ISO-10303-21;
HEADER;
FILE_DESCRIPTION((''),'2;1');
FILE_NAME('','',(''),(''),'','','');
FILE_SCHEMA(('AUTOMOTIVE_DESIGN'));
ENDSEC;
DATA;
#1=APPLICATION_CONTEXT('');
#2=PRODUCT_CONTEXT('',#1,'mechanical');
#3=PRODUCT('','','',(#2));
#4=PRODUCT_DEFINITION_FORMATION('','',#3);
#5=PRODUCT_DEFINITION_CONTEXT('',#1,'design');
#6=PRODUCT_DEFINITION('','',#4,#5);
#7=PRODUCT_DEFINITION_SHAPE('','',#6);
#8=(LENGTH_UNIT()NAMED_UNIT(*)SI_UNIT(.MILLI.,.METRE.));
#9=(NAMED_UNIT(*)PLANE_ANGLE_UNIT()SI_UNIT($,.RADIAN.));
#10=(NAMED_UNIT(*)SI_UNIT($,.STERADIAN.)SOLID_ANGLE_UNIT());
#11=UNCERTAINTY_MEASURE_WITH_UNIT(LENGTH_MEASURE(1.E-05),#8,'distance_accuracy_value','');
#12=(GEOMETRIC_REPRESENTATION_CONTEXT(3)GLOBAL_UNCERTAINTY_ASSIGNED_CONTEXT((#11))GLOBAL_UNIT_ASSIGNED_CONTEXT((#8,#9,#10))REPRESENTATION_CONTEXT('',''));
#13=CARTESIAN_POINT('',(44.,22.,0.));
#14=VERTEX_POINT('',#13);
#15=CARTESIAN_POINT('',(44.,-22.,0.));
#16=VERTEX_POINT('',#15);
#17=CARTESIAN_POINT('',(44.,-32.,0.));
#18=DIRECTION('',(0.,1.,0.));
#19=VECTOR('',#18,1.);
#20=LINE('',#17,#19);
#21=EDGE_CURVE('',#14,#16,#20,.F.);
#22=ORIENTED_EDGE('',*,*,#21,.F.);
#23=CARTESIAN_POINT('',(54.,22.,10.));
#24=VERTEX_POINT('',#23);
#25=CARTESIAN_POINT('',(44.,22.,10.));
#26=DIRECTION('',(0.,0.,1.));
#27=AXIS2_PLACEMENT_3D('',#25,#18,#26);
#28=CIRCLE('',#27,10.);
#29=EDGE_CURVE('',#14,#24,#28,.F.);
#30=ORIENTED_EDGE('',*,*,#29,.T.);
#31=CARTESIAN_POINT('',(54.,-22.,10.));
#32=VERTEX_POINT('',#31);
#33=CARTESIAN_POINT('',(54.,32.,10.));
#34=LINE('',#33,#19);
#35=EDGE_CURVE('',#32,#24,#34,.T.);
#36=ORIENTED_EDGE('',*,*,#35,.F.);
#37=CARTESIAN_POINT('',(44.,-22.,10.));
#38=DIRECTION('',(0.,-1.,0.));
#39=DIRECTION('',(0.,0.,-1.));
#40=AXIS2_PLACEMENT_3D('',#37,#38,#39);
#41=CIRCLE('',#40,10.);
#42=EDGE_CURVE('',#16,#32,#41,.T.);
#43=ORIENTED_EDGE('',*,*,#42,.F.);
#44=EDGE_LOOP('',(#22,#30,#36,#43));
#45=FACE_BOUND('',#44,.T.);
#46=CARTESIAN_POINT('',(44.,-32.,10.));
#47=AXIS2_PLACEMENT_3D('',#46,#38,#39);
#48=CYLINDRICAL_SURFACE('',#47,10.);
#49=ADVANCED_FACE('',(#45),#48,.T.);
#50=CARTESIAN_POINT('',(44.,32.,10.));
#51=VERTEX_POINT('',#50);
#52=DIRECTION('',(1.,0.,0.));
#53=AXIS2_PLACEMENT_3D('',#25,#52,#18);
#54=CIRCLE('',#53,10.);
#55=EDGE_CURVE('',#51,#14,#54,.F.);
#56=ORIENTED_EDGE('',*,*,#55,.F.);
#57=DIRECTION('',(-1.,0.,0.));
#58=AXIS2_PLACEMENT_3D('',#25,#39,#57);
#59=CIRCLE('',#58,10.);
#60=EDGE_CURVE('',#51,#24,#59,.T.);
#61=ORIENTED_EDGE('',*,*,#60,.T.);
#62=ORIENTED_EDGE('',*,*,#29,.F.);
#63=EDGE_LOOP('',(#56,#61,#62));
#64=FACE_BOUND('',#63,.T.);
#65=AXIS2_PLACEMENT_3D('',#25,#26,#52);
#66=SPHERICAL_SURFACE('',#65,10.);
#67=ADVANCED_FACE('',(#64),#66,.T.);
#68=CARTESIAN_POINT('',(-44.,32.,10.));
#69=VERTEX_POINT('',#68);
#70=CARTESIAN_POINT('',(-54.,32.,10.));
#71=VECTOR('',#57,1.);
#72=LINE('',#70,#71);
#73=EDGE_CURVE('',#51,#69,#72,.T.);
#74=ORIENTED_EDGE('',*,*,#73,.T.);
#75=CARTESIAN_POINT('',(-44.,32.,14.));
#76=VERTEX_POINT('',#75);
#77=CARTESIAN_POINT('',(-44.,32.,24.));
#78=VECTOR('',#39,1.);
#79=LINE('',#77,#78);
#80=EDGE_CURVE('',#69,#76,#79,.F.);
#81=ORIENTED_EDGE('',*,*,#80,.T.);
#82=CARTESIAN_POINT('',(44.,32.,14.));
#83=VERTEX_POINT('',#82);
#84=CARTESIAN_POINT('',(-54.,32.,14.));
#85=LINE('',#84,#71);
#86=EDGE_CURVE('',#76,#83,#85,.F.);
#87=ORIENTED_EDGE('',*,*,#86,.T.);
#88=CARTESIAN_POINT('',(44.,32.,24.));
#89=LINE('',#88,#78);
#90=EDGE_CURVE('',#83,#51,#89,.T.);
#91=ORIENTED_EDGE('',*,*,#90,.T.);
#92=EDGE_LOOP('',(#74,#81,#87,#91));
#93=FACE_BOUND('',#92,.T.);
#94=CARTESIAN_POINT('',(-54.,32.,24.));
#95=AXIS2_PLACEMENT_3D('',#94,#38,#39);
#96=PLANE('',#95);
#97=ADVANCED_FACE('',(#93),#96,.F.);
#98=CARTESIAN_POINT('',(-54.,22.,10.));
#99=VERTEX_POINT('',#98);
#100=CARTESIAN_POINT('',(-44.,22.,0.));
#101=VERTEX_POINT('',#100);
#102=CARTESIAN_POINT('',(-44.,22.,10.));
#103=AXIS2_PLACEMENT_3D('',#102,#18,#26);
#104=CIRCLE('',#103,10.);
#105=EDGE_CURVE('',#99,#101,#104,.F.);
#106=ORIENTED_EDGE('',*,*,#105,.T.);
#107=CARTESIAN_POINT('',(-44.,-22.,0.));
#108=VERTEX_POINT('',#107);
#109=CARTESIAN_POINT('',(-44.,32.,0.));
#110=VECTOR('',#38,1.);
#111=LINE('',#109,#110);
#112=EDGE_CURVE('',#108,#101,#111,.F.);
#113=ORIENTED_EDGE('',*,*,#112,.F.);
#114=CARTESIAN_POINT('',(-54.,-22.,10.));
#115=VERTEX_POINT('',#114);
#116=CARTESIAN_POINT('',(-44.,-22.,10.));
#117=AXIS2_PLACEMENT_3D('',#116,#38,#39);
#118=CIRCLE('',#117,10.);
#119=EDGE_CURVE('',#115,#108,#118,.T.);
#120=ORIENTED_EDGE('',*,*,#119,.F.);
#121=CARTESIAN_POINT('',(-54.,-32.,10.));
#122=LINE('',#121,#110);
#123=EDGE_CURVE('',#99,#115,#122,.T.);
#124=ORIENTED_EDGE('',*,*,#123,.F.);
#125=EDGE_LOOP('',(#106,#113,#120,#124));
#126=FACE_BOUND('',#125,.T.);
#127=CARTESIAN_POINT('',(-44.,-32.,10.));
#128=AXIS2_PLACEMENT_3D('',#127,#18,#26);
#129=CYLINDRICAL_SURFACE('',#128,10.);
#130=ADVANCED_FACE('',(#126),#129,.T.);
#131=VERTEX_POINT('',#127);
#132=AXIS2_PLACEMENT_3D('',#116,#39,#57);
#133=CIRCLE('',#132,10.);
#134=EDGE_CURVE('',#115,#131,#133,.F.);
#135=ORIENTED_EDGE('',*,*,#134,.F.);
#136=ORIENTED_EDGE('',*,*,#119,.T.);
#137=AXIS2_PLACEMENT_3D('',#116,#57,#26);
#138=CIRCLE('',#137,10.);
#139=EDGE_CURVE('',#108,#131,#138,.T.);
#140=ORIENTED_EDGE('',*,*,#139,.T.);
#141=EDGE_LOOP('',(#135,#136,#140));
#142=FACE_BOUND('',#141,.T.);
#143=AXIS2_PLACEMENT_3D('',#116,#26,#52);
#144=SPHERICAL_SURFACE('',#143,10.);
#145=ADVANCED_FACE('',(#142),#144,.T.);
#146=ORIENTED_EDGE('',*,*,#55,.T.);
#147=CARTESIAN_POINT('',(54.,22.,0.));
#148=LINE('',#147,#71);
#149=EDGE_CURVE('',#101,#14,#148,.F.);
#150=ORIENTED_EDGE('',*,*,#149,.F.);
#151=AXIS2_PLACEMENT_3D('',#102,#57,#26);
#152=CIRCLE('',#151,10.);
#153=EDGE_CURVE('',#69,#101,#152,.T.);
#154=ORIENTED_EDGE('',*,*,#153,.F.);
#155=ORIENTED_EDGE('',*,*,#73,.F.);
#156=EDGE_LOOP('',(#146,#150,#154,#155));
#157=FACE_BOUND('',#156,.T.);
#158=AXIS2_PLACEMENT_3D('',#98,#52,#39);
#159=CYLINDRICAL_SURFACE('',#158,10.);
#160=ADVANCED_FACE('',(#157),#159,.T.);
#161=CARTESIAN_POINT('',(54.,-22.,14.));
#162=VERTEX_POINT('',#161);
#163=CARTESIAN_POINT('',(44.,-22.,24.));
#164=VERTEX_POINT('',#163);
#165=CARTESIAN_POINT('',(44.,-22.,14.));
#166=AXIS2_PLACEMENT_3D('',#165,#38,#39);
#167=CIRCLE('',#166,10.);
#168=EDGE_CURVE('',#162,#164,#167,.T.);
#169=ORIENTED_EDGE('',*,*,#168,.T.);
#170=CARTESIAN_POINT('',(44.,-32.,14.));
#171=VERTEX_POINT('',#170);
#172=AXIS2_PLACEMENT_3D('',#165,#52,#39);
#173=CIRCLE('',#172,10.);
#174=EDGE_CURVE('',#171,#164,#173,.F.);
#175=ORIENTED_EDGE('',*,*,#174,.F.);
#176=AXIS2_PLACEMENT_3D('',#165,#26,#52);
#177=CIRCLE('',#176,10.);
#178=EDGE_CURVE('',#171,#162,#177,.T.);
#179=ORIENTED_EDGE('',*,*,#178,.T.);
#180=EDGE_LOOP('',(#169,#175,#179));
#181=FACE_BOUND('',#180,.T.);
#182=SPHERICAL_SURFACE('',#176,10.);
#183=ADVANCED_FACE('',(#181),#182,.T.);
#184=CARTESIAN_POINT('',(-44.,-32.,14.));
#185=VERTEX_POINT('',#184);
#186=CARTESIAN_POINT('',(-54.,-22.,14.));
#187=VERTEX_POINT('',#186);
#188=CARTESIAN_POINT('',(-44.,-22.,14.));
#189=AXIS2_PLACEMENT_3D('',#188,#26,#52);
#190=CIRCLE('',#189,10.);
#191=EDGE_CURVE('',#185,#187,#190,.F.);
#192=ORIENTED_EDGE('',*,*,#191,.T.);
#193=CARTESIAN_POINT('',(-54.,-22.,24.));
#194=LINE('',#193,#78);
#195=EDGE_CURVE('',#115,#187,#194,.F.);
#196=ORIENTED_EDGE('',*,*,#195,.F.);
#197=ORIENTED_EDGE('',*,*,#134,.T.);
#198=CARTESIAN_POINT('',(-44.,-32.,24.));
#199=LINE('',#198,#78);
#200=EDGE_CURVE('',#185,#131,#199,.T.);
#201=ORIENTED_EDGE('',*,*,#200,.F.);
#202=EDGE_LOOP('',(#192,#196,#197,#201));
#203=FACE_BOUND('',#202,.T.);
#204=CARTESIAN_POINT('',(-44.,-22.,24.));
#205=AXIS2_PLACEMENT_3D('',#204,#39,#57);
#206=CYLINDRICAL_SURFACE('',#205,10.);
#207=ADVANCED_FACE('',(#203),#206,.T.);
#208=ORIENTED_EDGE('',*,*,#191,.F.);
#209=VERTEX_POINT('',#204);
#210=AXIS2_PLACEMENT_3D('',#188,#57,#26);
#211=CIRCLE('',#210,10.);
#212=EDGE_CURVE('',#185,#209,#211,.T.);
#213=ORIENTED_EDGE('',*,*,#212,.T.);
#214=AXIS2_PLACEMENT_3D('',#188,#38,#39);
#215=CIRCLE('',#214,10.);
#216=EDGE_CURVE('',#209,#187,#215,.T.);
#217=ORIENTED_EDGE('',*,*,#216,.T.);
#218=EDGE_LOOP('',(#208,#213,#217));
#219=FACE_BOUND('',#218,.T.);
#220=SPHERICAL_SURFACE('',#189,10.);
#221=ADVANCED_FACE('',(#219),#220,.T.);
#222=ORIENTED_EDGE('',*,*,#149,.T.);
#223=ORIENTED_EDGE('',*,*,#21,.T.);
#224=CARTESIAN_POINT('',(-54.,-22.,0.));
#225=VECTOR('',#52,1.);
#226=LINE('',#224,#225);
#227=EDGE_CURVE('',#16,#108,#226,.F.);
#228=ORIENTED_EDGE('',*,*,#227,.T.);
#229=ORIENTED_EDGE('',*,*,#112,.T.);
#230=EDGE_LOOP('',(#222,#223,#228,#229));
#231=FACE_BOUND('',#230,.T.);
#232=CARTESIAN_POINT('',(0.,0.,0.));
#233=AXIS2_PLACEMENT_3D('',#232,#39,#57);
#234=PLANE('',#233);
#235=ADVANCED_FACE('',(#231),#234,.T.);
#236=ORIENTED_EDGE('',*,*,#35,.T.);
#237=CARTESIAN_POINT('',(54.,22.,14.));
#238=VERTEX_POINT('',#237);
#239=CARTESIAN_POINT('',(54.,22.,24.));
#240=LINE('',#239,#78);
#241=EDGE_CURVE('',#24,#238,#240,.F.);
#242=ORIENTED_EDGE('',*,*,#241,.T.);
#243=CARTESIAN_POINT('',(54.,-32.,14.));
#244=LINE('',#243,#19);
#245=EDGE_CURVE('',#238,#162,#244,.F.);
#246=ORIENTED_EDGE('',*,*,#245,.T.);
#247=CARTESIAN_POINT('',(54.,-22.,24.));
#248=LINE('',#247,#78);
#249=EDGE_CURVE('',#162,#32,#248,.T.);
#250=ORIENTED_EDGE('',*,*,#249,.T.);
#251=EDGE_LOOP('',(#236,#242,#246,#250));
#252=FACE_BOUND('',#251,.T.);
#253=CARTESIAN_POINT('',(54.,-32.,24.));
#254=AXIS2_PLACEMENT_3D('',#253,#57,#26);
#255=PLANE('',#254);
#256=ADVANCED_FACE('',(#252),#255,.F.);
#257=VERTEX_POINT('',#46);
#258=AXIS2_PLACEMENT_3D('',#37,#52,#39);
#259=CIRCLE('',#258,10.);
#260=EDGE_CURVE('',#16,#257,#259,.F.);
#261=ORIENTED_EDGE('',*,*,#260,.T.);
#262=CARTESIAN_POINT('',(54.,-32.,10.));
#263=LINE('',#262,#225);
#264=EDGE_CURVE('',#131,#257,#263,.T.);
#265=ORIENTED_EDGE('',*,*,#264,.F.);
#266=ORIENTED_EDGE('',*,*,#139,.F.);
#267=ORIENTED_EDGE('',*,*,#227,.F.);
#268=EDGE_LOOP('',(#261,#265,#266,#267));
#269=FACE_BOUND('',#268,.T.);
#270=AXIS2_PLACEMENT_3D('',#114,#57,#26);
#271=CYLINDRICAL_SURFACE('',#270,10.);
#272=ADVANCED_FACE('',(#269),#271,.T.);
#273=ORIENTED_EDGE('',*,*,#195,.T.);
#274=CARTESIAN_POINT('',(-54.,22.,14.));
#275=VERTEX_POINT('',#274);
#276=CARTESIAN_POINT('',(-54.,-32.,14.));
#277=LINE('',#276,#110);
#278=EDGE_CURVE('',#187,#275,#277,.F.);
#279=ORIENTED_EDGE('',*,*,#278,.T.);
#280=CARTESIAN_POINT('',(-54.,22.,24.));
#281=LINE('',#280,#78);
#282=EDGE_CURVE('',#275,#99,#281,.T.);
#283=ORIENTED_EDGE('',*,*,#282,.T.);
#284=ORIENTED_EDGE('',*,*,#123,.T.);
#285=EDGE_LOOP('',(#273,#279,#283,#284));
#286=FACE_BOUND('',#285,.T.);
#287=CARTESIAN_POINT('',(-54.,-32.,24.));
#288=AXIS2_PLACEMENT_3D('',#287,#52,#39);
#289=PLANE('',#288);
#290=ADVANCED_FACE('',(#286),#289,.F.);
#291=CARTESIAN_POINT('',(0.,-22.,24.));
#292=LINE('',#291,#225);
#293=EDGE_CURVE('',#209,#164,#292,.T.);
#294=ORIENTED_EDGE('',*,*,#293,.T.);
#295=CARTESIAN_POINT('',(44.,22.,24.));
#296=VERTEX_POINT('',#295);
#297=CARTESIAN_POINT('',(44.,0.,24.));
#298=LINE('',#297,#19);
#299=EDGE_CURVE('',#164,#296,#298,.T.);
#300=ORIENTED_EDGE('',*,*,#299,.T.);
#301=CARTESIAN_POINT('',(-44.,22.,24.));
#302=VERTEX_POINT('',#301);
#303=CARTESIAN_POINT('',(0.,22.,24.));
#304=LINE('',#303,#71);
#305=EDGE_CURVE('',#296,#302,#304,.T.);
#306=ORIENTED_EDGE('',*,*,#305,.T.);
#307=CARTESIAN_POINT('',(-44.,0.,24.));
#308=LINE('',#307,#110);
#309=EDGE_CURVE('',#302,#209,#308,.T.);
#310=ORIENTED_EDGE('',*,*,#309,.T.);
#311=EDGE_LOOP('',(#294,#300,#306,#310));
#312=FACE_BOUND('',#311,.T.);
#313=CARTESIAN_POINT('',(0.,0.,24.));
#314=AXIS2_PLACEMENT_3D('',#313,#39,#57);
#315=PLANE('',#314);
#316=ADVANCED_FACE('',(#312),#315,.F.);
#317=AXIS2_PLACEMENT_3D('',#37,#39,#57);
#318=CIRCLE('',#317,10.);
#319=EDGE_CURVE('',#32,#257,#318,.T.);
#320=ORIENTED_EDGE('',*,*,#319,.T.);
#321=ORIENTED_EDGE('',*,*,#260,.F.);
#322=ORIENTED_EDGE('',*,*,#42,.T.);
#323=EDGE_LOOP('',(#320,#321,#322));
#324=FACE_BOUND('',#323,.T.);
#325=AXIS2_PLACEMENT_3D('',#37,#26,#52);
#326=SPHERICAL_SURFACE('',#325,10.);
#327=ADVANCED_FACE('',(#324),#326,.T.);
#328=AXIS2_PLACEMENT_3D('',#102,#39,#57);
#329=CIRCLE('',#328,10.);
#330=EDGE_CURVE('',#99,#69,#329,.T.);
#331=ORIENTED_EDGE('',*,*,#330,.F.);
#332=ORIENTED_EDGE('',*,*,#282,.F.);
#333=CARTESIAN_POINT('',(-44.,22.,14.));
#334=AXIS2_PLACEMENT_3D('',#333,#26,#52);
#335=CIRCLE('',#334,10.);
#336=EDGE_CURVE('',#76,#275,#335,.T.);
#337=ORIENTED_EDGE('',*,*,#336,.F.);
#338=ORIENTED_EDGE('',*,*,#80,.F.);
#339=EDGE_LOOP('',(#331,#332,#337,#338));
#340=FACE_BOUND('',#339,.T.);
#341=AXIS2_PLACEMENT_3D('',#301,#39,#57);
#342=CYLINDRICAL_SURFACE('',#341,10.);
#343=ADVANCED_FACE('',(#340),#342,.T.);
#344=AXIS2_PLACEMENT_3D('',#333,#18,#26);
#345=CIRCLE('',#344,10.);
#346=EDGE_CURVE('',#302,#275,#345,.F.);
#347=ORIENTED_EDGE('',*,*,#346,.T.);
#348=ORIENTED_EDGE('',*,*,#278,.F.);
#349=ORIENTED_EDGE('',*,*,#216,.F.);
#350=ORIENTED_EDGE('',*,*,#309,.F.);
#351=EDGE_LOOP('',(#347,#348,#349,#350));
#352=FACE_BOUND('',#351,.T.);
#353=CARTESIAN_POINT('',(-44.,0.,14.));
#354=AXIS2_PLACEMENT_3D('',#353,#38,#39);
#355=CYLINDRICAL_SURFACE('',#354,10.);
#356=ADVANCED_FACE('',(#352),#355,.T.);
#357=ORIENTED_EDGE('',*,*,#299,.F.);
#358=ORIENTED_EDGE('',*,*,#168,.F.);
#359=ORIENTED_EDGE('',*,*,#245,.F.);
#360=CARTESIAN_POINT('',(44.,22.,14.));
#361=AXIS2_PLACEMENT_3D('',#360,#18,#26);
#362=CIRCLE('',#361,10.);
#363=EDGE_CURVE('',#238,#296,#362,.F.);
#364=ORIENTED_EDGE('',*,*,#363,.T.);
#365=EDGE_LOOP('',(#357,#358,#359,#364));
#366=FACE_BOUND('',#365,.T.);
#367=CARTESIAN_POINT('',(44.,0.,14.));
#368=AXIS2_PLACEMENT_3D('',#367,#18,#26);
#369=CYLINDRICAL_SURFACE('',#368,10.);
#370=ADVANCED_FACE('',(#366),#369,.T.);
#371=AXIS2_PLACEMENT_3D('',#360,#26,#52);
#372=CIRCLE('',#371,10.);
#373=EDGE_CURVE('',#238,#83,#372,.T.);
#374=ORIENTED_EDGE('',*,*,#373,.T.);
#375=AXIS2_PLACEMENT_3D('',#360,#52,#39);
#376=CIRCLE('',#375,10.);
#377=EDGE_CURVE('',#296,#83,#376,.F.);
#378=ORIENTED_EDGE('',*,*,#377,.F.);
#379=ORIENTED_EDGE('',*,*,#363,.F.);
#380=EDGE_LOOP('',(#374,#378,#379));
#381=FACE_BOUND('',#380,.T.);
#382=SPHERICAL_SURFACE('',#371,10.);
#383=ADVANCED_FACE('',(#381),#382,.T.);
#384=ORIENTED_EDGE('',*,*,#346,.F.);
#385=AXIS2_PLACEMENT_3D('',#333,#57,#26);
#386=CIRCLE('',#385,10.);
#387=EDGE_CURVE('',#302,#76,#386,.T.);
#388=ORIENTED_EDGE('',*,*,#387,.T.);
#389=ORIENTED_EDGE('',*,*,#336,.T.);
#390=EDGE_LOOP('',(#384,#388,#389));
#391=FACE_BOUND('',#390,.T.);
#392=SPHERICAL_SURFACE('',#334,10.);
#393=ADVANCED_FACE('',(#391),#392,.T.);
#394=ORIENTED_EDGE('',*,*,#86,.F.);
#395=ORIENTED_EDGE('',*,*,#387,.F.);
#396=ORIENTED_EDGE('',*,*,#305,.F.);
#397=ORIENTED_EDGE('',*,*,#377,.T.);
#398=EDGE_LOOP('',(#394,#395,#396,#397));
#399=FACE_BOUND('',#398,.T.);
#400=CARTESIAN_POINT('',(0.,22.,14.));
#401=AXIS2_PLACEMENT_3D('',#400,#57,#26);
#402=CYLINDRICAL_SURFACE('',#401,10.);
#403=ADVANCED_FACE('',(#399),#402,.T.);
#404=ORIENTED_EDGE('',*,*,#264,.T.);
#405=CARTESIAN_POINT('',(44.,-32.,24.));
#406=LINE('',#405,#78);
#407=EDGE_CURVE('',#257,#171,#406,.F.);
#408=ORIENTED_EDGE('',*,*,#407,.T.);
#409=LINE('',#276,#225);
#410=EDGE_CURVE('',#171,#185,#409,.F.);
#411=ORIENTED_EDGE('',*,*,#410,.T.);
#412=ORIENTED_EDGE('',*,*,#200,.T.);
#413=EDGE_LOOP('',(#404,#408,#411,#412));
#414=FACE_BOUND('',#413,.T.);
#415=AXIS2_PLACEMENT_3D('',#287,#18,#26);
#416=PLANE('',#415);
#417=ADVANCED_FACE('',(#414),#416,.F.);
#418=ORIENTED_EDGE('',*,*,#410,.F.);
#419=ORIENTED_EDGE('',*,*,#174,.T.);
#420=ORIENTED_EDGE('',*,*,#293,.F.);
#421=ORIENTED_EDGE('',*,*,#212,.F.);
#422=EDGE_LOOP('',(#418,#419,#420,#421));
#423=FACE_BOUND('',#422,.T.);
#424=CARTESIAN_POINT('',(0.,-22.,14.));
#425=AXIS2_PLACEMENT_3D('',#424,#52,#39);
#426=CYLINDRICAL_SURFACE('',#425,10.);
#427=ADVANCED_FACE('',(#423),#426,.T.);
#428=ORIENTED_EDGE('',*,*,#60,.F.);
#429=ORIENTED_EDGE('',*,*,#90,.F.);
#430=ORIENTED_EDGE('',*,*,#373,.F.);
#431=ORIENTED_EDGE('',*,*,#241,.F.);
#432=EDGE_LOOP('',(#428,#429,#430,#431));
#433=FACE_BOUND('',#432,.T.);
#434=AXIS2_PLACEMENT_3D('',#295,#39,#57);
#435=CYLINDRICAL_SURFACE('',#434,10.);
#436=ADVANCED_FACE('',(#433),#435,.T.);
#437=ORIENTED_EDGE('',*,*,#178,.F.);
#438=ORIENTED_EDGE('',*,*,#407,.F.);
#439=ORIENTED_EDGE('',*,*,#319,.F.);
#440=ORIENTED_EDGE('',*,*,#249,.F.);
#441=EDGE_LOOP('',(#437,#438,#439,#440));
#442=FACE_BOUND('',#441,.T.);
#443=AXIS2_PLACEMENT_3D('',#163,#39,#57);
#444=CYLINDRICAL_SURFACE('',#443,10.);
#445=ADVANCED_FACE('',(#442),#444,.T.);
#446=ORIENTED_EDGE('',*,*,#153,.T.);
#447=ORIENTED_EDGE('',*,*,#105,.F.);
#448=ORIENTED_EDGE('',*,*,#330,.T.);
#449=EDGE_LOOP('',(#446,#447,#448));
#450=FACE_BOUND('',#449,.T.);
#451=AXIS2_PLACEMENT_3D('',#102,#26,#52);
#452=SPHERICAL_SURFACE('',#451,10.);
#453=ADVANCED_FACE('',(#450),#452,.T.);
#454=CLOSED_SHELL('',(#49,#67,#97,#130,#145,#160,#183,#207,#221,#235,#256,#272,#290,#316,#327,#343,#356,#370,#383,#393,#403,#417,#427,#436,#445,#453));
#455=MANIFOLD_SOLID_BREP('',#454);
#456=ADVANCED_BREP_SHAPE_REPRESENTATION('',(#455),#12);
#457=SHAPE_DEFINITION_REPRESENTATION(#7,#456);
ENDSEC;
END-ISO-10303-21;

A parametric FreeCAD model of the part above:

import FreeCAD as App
import Part
import Sketcher
Q = App.Units.Quantity

doc = App.newDocument("Part")
body = doc.addObject("PartDesign::Body", "Body")

# Sketch on XY plane
sketch1 = body.newObject("Sketcher::SketchObject", "Sketch")
sketch1.AttachmentSupport = (doc.getObject("XY_Plane"), [""])
sketch1.MapMode = "FlatFace"
sketch1.addGeometry(Part.LineSegment(App.Vector(-54, 32, 0), App.Vector(-54, -32, 0)), False)
sketch1.addGeometry(Part.LineSegment(App.Vector(-54, -32, 0), App.Vector(54, -32, 0)), False)
sketch1.addGeometry(Part.LineSegment(App.Vector(54, -32, 0), App.Vector(54, 32, 0)), False)
sketch1.addGeometry(Part.LineSegment(App.Vector(54, 32, 0), App.Vector(-54, 32, 0)), False)
sketch1.addConstraint(Sketcher.Constraint("Coincident", 0, 2, 1, 1))
sketch1.addConstraint(Sketcher.Constraint("Coincident", 1, 2, 2, 1))
sketch1.addConstraint(Sketcher.Constraint("Coincident", 2, 2, 3, 1))
sketch1.addConstraint(Sketcher.Constraint("Coincident", 3, 2, 0, 1))
sketch1.addConstraint(Sketcher.Constraint("Vertical", 0))
sketch1.addConstraint(Sketcher.Constraint("Horizontal", 1))
sketch1.addConstraint(Sketcher.Constraint("Vertical", 2))
sketch1.addConstraint(Sketcher.Constraint("Horizontal", 3))
sketch1.addConstraint(Sketcher.Constraint("Symmetric", 0, 2, 2, 2, -1, 1))
sketch1.addConstraint(Sketcher.Constraint("DistanceX", 1, 1, 1, 2, Q("108 mm")))
sketch1.addConstraint(Sketcher.Constraint("DistanceY", 0, 2, 0, 1, Q("64 mm")))
pad1 = body.newObject("PartDesign::Pad", "Pad")
pad1.Profile = sketch1
pad1.Length = 24
doc.recompute()

fillet = body.newObject("PartDesign::Fillet", "Fillet")
fillet.Base = (pad1, ["Edge1"])
fillet.UseAllEdges = True
fillet.Radius = 10

doc.recompute()
